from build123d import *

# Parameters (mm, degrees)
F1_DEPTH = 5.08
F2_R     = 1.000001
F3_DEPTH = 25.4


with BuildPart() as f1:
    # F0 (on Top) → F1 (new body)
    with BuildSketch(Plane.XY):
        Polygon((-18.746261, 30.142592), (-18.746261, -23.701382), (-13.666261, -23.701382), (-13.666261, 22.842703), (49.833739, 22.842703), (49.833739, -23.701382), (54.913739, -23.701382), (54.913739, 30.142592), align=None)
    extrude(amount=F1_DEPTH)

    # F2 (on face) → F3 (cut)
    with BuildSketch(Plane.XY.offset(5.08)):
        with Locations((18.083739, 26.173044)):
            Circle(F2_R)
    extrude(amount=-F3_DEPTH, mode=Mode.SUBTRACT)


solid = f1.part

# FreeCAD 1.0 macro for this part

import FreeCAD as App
import Part
import Sketcher
from FreeCAD import Vector
Q = App.Units.Quantity

doc = App.newDocument("Part")
body = doc.addObject("PartDesign::Body", "Body")

# Sketch on XY plane
sketch1 = body.newObject("Sketcher::SketchObject", "Sketch")
sketch1.AttachmentSupport = (doc.getObject("XY_Plane"), [""])
sketch1.MapMode = "FlatFace"
sketch1.addGeometry(Part.LineSegment(Vector(-18.746261, 30.142592, 0), Vector(-18.746261, -23.701382, 0)), False)
sketch1.addGeometry(Part.LineSegment(Vector(-18.746261, -23.701382, 0), Vector(-13.666261, -23.701382, 0)), False)
sketch1.addGeometry(Part.LineSegment(Vector(-13.666261, -23.701382, 0), Vector(-13.666261, 22.842703, 0)), False)
sketch1.addGeometry(Part.LineSegment(Vector(-13.666261, 22.842703, 0), Vector(49.833739, 22.842703, 0)), False)
sketch1.addGeometry(Part.LineSegment(Vector(49.833739, 22.842703, 0), Vector(49.833739, -23.701382, 0)), False)
sketch1.addGeometry(Part.LineSegment(Vector(49.833739, -23.701382, 0), Vector(54.913739, -23.701382, 0)), False)
sketch1.addGeometry(Part.LineSegment(Vector(54.913739, -23.701382, 0), Vector(54.913739, 30.142592, 0)), False)
sketch1.addGeometry(Part.LineSegment(Vector(54.913739, 30.142592, 0), Vector(-18.746261, 30.142592, 0)), False)
sketch1.addConstraint(Sketcher.Constraint("Coincident", 0, 2, 1, 1))
sketch1.addConstraint(Sketcher.Constraint("Coincident", 1, 2, 2, 1))
sketch1.addConstraint(Sketcher.Constraint("Coincident", 2, 2, 3, 1))
sketch1.addConstraint(Sketcher.Constraint("Coincident", 3, 2, 4, 1))
sketch1.addConstraint(Sketcher.Constraint("Coincident", 4, 2, 5, 1))
sketch1.addConstraint(Sketcher.Constraint("Coincident", 5, 2, 6, 1))
sketch1.addConstraint(Sketcher.Constraint("Coincident", 6, 2, 7, 1))
sketch1.addConstraint(Sketcher.Constraint("Coincident", 7, 2, 0, 1))
sketch1.addConstraint(Sketcher.Constraint("Vertical", 0))
sketch1.addConstraint(Sketcher.Constraint("Horizontal", 1))
sketch1.addConstraint(Sketcher.Constraint("Vertical", 2))
sketch1.addConstraint(Sketcher.Constraint("Horizontal", 3))
sketch1.addConstraint(Sketcher.Constraint("Vertical", 4))
sketch1.addConstraint(Sketcher.Constraint("Horizontal", 5))
sketch1.addConstraint(Sketcher.Constraint("Vertical", 6))
sketch1.addConstraint(Sketcher.Constraint("Horizontal", 7))
sketch1.addConstraint(Sketcher.Constraint("Horizontal", 1, 2, 4, 2))
sketch1.addConstraint(Sketcher.Constraint("Equal", 1, 5))
sketch1.addConstraint(Sketcher.Constraint("DistanceX", 1, 1, 1, 2, Q("0.2 in")))
sketch1.addConstraint(Sketcher.Constraint("DistanceX", 3, 1, 3, 2, Q("2.5 in")))
sketch1.addConstraint(Sketcher.Constraint("DistanceY", 0, 2, 0, 1, 53.843974))
sketch1.addConstraint(Sketcher.Constraint("DistanceY", 2, 1, 2, 2, 46.544085))
sketch1.addConstraint(Sketcher.Constraint("DistanceX", 0, 2, -1, 1, 18.746261))
sketch1.addConstraint(Sketcher.Constraint("DistanceY", 0, 2, -1, 1, 23.701382))
pad1 = body.newObject("PartDesign::Pad", "Pad")
pad1.Profile = sketch1
pad1.Length = Q("0.2 in")

# Sketch on XY plane
sketch2 = body.newObject("Sketcher::SketchObject", "Sketch001")
sketch2.AttachmentSupport = (doc.getObject("XY_Plane"), [""])
sketch2.MapMode = "FlatFace"
sketch2.AttachmentOffset = App.Placement(Vector(0, 0, 0.2 * 25.4), App.Rotation())
sketch2.addGeometry(Part.Circle(Vector(18.083739, 26.173044, 0), Vector(0, 0, 1), 1.000001), False)
sketch2.addConstraint(Sketcher.Constraint("Diameter", 0, 2.000002))
sketch2.addConstraint(Sketcher.Constraint("DistanceX", -1, 1, 0, 3, 18.083739))
sketch2.addConstraint(Sketcher.Constraint("DistanceY", -1, 1, 0, 3, 26.173044))
pocket1 = body.newObject("PartDesign::Pocket", "Pocket")
pocket1.Profile = sketch2
pocket1.Length = Q("1 in")

doc.recompute()
